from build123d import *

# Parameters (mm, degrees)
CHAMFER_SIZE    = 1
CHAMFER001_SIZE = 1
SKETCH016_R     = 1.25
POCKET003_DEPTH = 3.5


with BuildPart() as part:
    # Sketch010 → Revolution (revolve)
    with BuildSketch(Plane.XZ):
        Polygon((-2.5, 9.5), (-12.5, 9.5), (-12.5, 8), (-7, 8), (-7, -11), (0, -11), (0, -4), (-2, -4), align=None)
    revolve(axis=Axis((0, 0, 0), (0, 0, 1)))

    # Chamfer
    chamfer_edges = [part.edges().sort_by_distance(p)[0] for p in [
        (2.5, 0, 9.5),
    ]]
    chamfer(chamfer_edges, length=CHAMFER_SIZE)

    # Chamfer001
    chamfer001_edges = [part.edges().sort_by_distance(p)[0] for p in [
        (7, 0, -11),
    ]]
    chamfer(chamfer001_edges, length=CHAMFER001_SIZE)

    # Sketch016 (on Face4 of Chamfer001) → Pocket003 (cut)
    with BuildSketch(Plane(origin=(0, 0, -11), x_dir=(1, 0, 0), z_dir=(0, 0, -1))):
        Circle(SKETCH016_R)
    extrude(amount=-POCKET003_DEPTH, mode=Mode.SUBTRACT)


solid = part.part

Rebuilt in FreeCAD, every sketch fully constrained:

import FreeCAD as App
import Part
import Sketcher

V = App.Vector


def edges_at(feature, points):
    """Names of the edges that pass closest to the given points."""
    edges = feature.Shape.Edges
    near = lambda p: min(range(len(edges)), key=lambda i: edges[i].distToShape(Part.Vertex(*p))[0])
    return sorted({f"Edge{near(p) + 1}" for p in points})

doc = App.newDocument("Part")
body = doc.addObject("PartDesign::Body", "Body")

# Sketch on XZ plane
sketch1 = doc.addObject("Sketcher::SketchObject", "Sketch")
body.addObject(sketch1)
sketch1.AttachmentSupport = (doc.XZ_Plane, [""])
sketch1.MapMode = "FlatFace"
sketch1.addGeometry(Part.LineSegment(V(-2.5, 9.5, 0), V(-12.5, 9.5, 0)), False)
sketch1.addGeometry(Part.LineSegment(V(-12.5, 9.5, 0), V(-12.5, 8, 0)), False)
sketch1.addGeometry(Part.LineSegment(V(-12.5, 8, 0), V(-7, 8, 0)), False)
sketch1.addGeometry(Part.LineSegment(V(-7, 8, 0), V(-7, -11, 0)), False)
sketch1.addGeometry(Part.LineSegment(V(-7, -11, 0), V(0, -11, 0)), False)
sketch1.addGeometry(Part.LineSegment(V(0, -11, 0), V(0, -4, 0)), False)
sketch1.addGeometry(Part.LineSegment(V(0, -4, 0), V(-2, -4, 0)), False)
sketch1.addGeometry(Part.LineSegment(V(-2, -4, 0), V(-2.5, 9.5, 0)), False)
sketch1.addConstraint(Sketcher.Constraint("Coincident", 0, 2, 1, 1))
sketch1.addConstraint(Sketcher.Constraint("Coincident", 1, 2, 2, 1))
sketch1.addConstraint(Sketcher.Constraint("Coincident", 2, 2, 3, 1))
sketch1.addConstraint(Sketcher.Constraint("Coincident", 3, 2, 4, 1))
sketch1.addConstraint(Sketcher.Constraint("Coincident", 4, 2, 5, 1))
sketch1.addConstraint(Sketcher.Constraint("Coincident", 5, 2, 6, 1))
sketch1.addConstraint(Sketcher.Constraint("Coincident", 6, 2, 7, 1))
sketch1.addConstraint(Sketcher.Constraint("Coincident", 7, 2, 0, 1))
sketch1.addConstraint(Sketcher.Constraint("Horizontal", 0))
sketch1.addConstraint(Sketcher.Constraint("Vertical", 1))
sketch1.addConstraint(Sketcher.Constraint("Horizontal", 2))
sketch1.addConstraint(Sketcher.Constraint("Vertical", 3))
sketch1.addConstraint(Sketcher.Constraint("Horizontal", 4))
sketch1.addConstraint(Sketcher.Constraint("Vertical", 5))
sketch1.addConstraint(Sketcher.Constraint("Horizontal", 6))
sketch1.addConstraint(Sketcher.Constraint("PointOnObject", 4, 2, -2))
sketch1.addConstraint(Sketcher.Constraint("Equal", 4, 5))
sketch1.addConstraint(Sketcher.Constraint("DistanceX", 0, 2, 0, 1, 10.0))
sketch1.addConstraint(Sketcher.Constraint("DistanceX", 4, 1, 4, 2, 7.0))
sketch1.addConstraint(Sketcher.Constraint("DistanceX", 6, 2, 6, 1, 2.0))
sketch1.addConstraint(Sketcher.Constraint("DistanceY", 3, 2, 3, 1, 19.0))
sketch1.addConstraint(Sketcher.Constraint("DistanceX", 2, 1, 2, 2, 5.5))
sketch1.addConstraint(Sketcher.Constraint("DistanceY", 1, 2, 1, 1, 1.5))
sketch1.addConstraint(Sketcher.Constraint("DistanceY", -1, 1, 1, 2, 8.0))
revolution = doc.addObject("PartDesign::Revolution", "Revolution")
body.addObject(revolution)
revolution.Profile = sketch1
revolution.ReferenceAxis = (sketch1, ["V_Axis"])
revolution.Angle = 360
doc.recompute()

chamfer = doc.addObject("PartDesign::Chamfer", "Chamfer")
body.addObject(chamfer)
chamfer.Base = (revolution, edges_at(revolution, [(2.5, 0, 9.5)]))
chamfer.Size = 1
doc.recompute()

chamfer2 = doc.addObject("PartDesign::Chamfer", "Chamfer001")
body.addObject(chamfer2)
chamfer2.Base = (chamfer, edges_at(chamfer, [(7, 0, -11)]))
chamfer2.Size = 1

# Sketch on XY plane
sketch2 = doc.addObject("Sketcher::SketchObject", "Sketch001")
body.addObject(sketch2)
sketch2.AttachmentSupport = (doc.XY_Plane, [""])
sketch2.MapMode = "FlatFace"
sketch2.AttachmentOffset = App.Placement(V(0, 0, -11), App.Rotation())
sketch2.addGeometry(Part.Circle(V(0, 0, 0), V(0, 0, 1), 1.2), False)
sketch2.addConstraint(Sketcher.Constraint("Coincident", 0, 3, -1, 1))
sketch2.addConstraint(Sketcher.Constraint("Diameter", 0, 2.5))
pocket1 = doc.addObject("PartDesign::Pocket", "Pocket")
body.addObject(pocket1)
pocket1.Profile = sketch2
pocket1.Length = 3.5
pocket1.Reversed = True

doc.recompute()
